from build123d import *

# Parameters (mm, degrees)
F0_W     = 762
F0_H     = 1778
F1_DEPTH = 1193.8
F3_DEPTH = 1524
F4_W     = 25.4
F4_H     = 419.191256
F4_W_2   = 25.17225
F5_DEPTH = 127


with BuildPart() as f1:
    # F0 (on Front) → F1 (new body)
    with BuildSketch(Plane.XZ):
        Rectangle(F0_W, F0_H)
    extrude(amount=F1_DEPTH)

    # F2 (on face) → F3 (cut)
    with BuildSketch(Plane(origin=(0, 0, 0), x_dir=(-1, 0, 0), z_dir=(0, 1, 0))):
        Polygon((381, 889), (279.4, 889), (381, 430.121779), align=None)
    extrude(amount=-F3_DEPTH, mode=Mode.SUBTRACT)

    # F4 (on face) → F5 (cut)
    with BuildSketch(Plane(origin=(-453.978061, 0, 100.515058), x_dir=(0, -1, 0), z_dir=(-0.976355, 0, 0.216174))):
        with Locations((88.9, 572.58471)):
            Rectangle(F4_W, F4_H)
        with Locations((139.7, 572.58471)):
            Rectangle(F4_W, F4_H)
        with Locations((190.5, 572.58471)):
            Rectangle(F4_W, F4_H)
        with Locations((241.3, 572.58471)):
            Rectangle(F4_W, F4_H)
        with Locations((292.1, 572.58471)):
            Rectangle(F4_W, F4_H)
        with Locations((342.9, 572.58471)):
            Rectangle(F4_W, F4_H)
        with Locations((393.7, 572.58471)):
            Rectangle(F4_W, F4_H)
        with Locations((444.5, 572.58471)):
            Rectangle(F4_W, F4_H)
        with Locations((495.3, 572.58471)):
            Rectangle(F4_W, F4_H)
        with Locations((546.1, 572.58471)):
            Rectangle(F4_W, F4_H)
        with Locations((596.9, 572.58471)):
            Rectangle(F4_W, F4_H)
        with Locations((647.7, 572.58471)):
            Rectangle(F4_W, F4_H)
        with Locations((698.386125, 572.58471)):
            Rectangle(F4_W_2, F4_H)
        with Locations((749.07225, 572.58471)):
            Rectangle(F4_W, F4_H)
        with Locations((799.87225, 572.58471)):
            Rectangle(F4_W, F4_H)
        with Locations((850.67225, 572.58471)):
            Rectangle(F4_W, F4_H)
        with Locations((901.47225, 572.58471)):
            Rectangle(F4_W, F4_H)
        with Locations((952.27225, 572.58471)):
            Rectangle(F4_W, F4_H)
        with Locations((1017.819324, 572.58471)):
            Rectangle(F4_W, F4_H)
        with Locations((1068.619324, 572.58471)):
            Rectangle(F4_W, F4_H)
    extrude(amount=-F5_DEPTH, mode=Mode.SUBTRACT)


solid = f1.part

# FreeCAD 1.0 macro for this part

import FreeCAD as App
import Part
import Sketcher

V = App.Vector
Q = App.Units.Quantity


def add_polygon(sketch, points):
    """Adds a closed chain of lines whose ends are joined by coincident constraints."""
    first, n = sketch.GeometryCount, len(points)
    for a, b in zip(points, points[1:] + points[:1]):
        sketch.addGeometry(Part.LineSegment(App.Vector(*a, 0), App.Vector(*b, 0)), False)
    for i in range(n):
        sketch.addConstraint(Sketcher.Constraint("Coincident", first + i, 2, first + (i + 1) % n, 1))

doc = App.newDocument("Part")
params = doc.addObject("Spreadsheet::Sheet", "Params")
for row, (alias, value) in enumerate([
    ("sketch1_width", "30 in"),
    ("sketch1_height", "70 in"),
    ("pad1_length", "47 in"),
    ("sketch2_width", "4 in"),
    ("pocket1_length", "60 in"),
    ("sketch3_width", "1 in"),
    ("pocket2_length", "5 in"),
], start=1):
    params.set(f"A{row}", alias)
    params.set(f"B{row}", "=" + value)
    params.setAlias(f"B{row}", alias)

body = doc.addObject("PartDesign::Body", "Body")

# Sketch on XZ plane
sketch1 = body.newObject("Sketcher::SketchObject", "Sketch")
sketch1.AttachmentSupport = (doc.getObject("XZ_Plane"), [""])
sketch1.MapMode = "FlatFace"
add_polygon(sketch1, [(-381, 889), (-381, -889), (381, -889), (381, 889)])  # lines 0-3
sketch1.addConstraint([
    Sketcher.Constraint("Vertical", 0),
    Sketcher.Constraint("Horizontal", 1),
    Sketcher.Constraint("Vertical", 2),
    Sketcher.Constraint("Horizontal", 3),
    Sketcher.Constraint("Symmetric", 0, 2, 2, 2, -1, 1),
    Sketcher.Constraint("DistanceX", 1, 1, 1, 2, Q("30 in")),
    Sketcher.Constraint("DistanceY", 0, 2, 0, 1, Q("70 in")),
])
sketch1.setExpression("Constraints[9]", "Params.sketch1_width")
sketch1.setExpression("Constraints[10]", "Params.sketch1_height")
pad1 = body.newObject("PartDesign::Pad", "Pad")
pad1.Profile = sketch1
pad1.setExpression("Length", "Params.pad1_length")

# Sketch on XZ plane
sketch2 = body.newObject("Sketcher::SketchObject", "Sketch001")
sketch2.AttachmentSupport = (doc.getObject("XZ_Plane"), [""])
sketch2.MapMode = "FlatFace"
add_polygon(sketch2, [(-381, 889), (-279, 889), (-381, 430)])  # lines 0-2
sketch2.addConstraint([
    Sketcher.Constraint("Horizontal", 0),
    Sketcher.Constraint("Vertical", 2),
    Sketcher.Constraint("DistanceX", 0, 1, 0, 2, Q("4 in")),
    Sketcher.Constraint("DistanceX", 0, 2, -1, 1, Q("11 in")),
    Sketcher.Constraint("DistanceY", -1, 1, 0, 2, Q("35 in")),
    Sketcher.Constraint("DistanceY", 2, 1, 2, 2, Q("458.878221 mm")),
])
sketch2.setExpression("Constraints[5]", "Params.sketch2_width")
pocket1 = body.newObject("PartDesign::Pocket", "Pocket")
pocket1.Profile = sketch2
pocket1.setExpression("Length", "Params.pocket1_length")
pocket1.Reversed = True

# Sketch on an angled plane
sketch3 = body.newObject("Sketcher::SketchObject", "Sketch002")
sketch3.Placement = App.Placement(V(-453.978061, 0, 100.515058), App.Rotation(V(0, -1, 0), V(0.216173969, 0, 0.976354861), V(-0.976354861, 0, 0.216173969), "ZXY"))
add_polygon(sketch3, [(76, 782), (76, 363), (102, 363), (102, 782)])  # lines 0-3
add_polygon(sketch3, [(127, 782), (127, 363), (152, 363), (152, 782)])  # lines 4-7
add_polygon(sketch3, [(178, 782), (178, 363), (203, 363), (203, 782)])  # lines 8-11
add_polygon(sketch3, [(229, 782), (229, 363), (254, 363), (254, 782)])  # lines 12-15
add_polygon(sketch3, [(279, 782), (279, 363), (305, 363), (305, 782)])  # lines 16-19
add_polygon(sketch3, [(330, 782), (330, 363), (356, 363), (356, 782)])  # lines 20-23
add_polygon(sketch3, [(381, 782), (381, 363), (406, 363), (406, 782)])  # lines 24-27
add_polygon(sketch3, [(432, 782), (432, 363), (457, 363), (457, 782)])  # lines 28-31
add_polygon(sketch3, [(483, 782), (483, 363), (508, 363), (508, 782)])  # lines 32-35
add_polygon(sketch3, [(533, 782), (533, 363), (559, 363), (559, 782)])  # lines 36-39
add_polygon(sketch3, [(584, 782), (584, 363), (610, 363), (610, 782)])  # lines 40-43
add_polygon(sketch3, [(635, 782), (635, 363), (660, 363), (660, 782)])  # lines 44-47
add_polygon(sketch3, [(686, 782), (686, 363), (711, 363), (711, 782)])  # lines 48-51
add_polygon(sketch3, [(736, 782), (736, 363), (762, 363), (762, 782)])  # lines 52-55
add_polygon(sketch3, [(787, 782), (787, 363), (813, 363), (813, 782)])  # lines 56-59
add_polygon(sketch3, [(838, 782), (838, 363), (863, 363), (863, 782)])  # lines 60-63
add_polygon(sketch3, [(889, 782), (889, 363), (914, 363), (914, 782)])  # lines 64-67
add_polygon(sketch3, [(940, 782), (940, 363), (965, 363), (965, 782)])  # lines 68-71
add_polygon(sketch3, [(1005, 782), (1005, 363), (1031, 363), (1031, 782)])  # lines 72-75
add_polygon(sketch3, [(1056, 782), (1056, 363), (1081, 363), (1081, 782)])  # lines 76-79
sketch3.addConstraint([
    Sketcher.Constraint("Vertical", 0),
    Sketcher.Constraint("Horizontal", 1),
    Sketcher.Constraint("Vertical", 2),
    Sketcher.Constraint("Horizontal", 3),
    Sketcher.Constraint("Vertical", 4),
    Sketcher.Constraint("Horizontal", 5),
    Sketcher.Constraint("Vertical", 6),
    Sketcher.Constraint("Horizontal", 7),
    Sketcher.Constraint("Vertical", 8),
    Sketcher.Constraint("Horizontal", 9),
    Sketcher.Constraint("Vertical", 10),
    Sketcher.Constraint("Horizontal", 11),
    Sketcher.Constraint("Vertical", 12),
    Sketcher.Constraint("Horizontal", 13),
    Sketcher.Constraint("Vertical", 14),
    Sketcher.Constraint("Horizontal", 15),
    Sketcher.Constraint("Vertical", 16),
    Sketcher.Constraint("Horizontal", 17),
    Sketcher.Constraint("Vertical", 18),
    Sketcher.Constraint("Horizontal", 19),
    Sketcher.Constraint("Vertical", 20),
    Sketcher.Constraint("Horizontal", 21),
    Sketcher.Constraint("Vertical", 22),
    Sketcher.Constraint("Horizontal", 23),
    Sketcher.Constraint("Vertical", 24),
    Sketcher.Constraint("Horizontal", 25),
    Sketcher.Constraint("Vertical", 26),
    Sketcher.Constraint("Horizontal", 27),
    Sketcher.Constraint("Vertical", 28),
    Sketcher.Constraint("Horizontal", 29),
    Sketcher.Constraint("Vertical", 30),
    Sketcher.Constraint("Horizontal", 31),
    Sketcher.Constraint("Vertical", 32),
    Sketcher.Constraint("Horizontal", 33),
    Sketcher.Constraint("Vertical", 34),
    Sketcher.Constraint("Horizontal", 35),
    Sketcher.Constraint("Vertical", 36),
    Sketcher.Constraint("Horizontal", 37),
    Sketcher.Constraint("Vertical", 38),
    Sketcher.Constraint("Horizontal", 39),
    Sketcher.Constraint("Vertical", 40),
    Sketcher.Constraint("Horizontal", 41),
    Sketcher.Constraint("Vertical", 42),
    Sketcher.Constraint("Horizontal", 43),
    Sketcher.Constraint("Vertical", 44),
    Sketcher.Constraint("Horizontal", 45),
    Sketcher.Constraint("Vertical", 46),
    Sketcher.Constraint("Horizontal", 47),
    Sketcher.Constraint("Vertical", 48),
    Sketcher.Constraint("Horizontal", 49),
    Sketcher.Constraint("Vertical", 50),
    Sketcher.Constraint("Horizontal", 51),
    Sketcher.Constraint("Vertical", 52),
    Sketcher.Constraint("Horizontal", 53),
    Sketcher.Constraint("Vertical", 54),
    Sketcher.Constraint("Horizontal", 55),
    Sketcher.Constraint("Vertical", 56),
    Sketcher.Constraint("Horizontal", 57),
    Sketcher.Constraint("Vertical", 58),
    Sketcher.Constraint("Horizontal", 59),
    Sketcher.Constraint("Vertical", 60),
    Sketcher.Constraint("Horizontal", 61),
    Sketcher.Constraint("Vertical", 62),
    Sketcher.Constraint("Horizontal", 63),
    Sketcher.Constraint("Vertical", 64),
    Sketcher.Constraint("Horizontal", 65),
    Sketcher.Constraint("Vertical", 66),
    Sketcher.Constraint("Horizontal", 67),
    Sketcher.Constraint("Vertical", 68),
    Sketcher.Constraint("Horizontal", 69),
    Sketcher.Constraint("Vertical", 70),
    Sketcher.Constraint("Horizontal", 71),
    Sketcher.Constraint("Vertical", 72),
    Sketcher.Constraint("Horizontal", 73),
    Sketcher.Constraint("Vertical", 74),
    Sketcher.Constraint("Horizontal", 75),
    Sketcher.Constraint("Vertical", 76),
    Sketcher.Constraint("Horizontal", 77),
    Sketcher.Constraint("Vertical", 78),
    Sketcher.Constraint("Horizontal", 79),
    Sketcher.Constraint("Horizontal", 1, 2, 4, 2),
    Sketcher.Constraint("Horizontal", 3, 2, 6, 2),
    Sketcher.Constraint("Horizontal", 5, 2, 8, 2),
    Sketcher.Constraint("Horizontal", 7, 2, 10, 2),
    Sketcher.Constraint("Horizontal", 9, 2, 12, 2),
    Sketcher.Constraint("Horizontal", 11, 2, 14, 2),
    Sketcher.Constraint("Horizontal", 13, 2, 16, 2),
    Sketcher.Constraint("Horizontal", 15, 2, 18, 2),
    Sketcher.Constraint("Horizontal", 17, 2, 20, 2),
    Sketcher.Constraint("Horizontal", 19, 2, 22, 2),
    Sketcher.Constraint("Horizontal", 21, 2, 24, 2),
    Sketcher.Constraint("Horizontal", 23, 2, 26, 2),
    Sketcher.Constraint("Horizontal", 25, 2, 28, 2),
    Sketcher.Constraint("Horizontal", 27, 2, 30, 2),
    Sketcher.Constraint("Horizontal", 29, 2, 32, 2),
    Sketcher.Constraint("Horizontal", 31, 2, 34, 2),
    Sketcher.Constraint("Horizontal", 33, 2, 36, 2),
    Sketcher.Constraint("Horizontal", 35, 2, 38, 2),
    Sketcher.Constraint("Horizontal", 37, 2, 40, 2),
    Sketcher.Constraint("Horizontal", 39, 2, 42, 2),
    Sketcher.Constraint("Horizontal", 41, 2, 44, 2),
    Sketcher.Constraint("Horizontal", 43, 2, 46, 2),
    Sketcher.Constraint("Horizontal", 45, 2, 48, 2),
    Sketcher.Constraint("Horizontal", 47, 2, 50, 2),
    Sketcher.Constraint("Horizontal", 49, 2, 52, 2),
    Sketcher.Constraint("Horizontal", 51, 2, 54, 2),
    Sketcher.Constraint("Horizontal", 53, 2, 56, 2),
    Sketcher.Constraint("Horizontal", 55, 2, 58, 2),
    Sketcher.Constraint("Horizontal", 57, 2, 60, 2),
    Sketcher.Constraint("Horizontal", 59, 2, 62, 2),
    Sketcher.Constraint("Horizontal", 61, 2, 64, 2),
    Sketcher.Constraint("Horizontal", 63, 2, 66, 2),
    Sketcher.Constraint("Horizontal", 65, 2, 68, 2),
    Sketcher.Constraint("Horizontal", 67, 2, 70, 2),
    Sketcher.Constraint("Horizontal", 69, 2, 72, 2),
    Sketcher.Constraint("Horizontal", 71, 2, 74, 2),
    Sketcher.Constraint("Horizontal", 73, 2, 76, 2),
    Sketcher.Constraint("Horizontal", 75, 2, 78, 2),
    Sketcher.Constraint("Equal", 3, 5),
    Sketcher.Constraint("Equal", 7, 9),
    Sketcher.Constraint("Equal", 11, 13),
    Sketcher.Constraint("Equal", 15, 17),
    Sketcher.Constraint("Equal", 19, 21),
    Sketcher.Constraint("Equal", 23, 25),
    Sketcher.Constraint("Equal", 27, 29),
    Sketcher.Constraint("Equal", 31, 33),
    Sketcher.Constraint("Equal", 35, 37),
    Sketcher.Constraint("Equal", 39, 41),
    Sketcher.Constraint("Equal", 43, 45),
    Sketcher.Constraint("Equal", 47, 53),
    Sketcher.Constraint("Equal", 55, 57),
    Sketcher.Constraint("Equal", 59, 61),
    Sketcher.Constraint("Equal", 63, 65),
    Sketcher.Constraint("Equal", 67, 69),
    Sketcher.Constraint("Equal", 71, 73),
    Sketcher.Constraint("Equal", 75, 77),
    Sketcher.Constraint("DistanceX", 1, 1, 1, 2, Q("1 in")),
    Sketcher.Constraint("DistanceX", -1, 1, 0, 2, Q("3 in")),
    Sketcher.Constraint("DistanceX", -1, 1, 4, 2, Q("5 in")),
    Sketcher.Constraint("DistanceX", -1, 1, 8, 2, Q("7 in")),
    Sketcher.Constraint("DistanceX", -1, 1, 12, 2, Q("9 in")),
    Sketcher.Constraint("DistanceX", -1, 1, 16, 2, Q("11 in")),
    Sketcher.Constraint("DistanceX", -1, 1, 20, 2, Q("13 in")),
    Sketcher.Constraint("DistanceX", -1, 1, 24, 2, Q("15 in")),
    Sketcher.Constraint("DistanceX", -1, 1, 28, 2, Q("17 in")),
    Sketcher.Constraint("DistanceX", -1, 1, 32, 2, Q("19 in")),
    Sketcher.Constraint("DistanceX", -1, 1, 36, 2, Q("21 in")),
    Sketcher.Constraint("DistanceX", -1, 1, 40, 2, Q("23 in")),
    Sketcher.Constraint("DistanceX", -1, 1, 44, 2, Q("25 in")),
    Sketcher.Constraint("DistanceX", -1, 1, 48, 2, Q("27 in")),
    Sketcher.Constraint("DistanceX", 49, 1, 49, 2, Q("25.17225 mm")),
    Sketcher.Constraint("DistanceY", 0, 2, 0, 1, Q("419.191256 mm")),
    Sketcher.Constraint("DistanceY", -1, 1, 0, 2, Q("362.989082 mm")),
    Sketcher.Constraint("DistanceX", -1, 1, 52, 2, Q("736.37225 mm")),
    Sketcher.Constraint("DistanceX", -1, 1, 56, 2, Q("787.17225 mm")),
    Sketcher.Constraint("DistanceX", -1, 1, 60, 2, Q("837.97225 mm")),
    Sketcher.Constraint("DistanceX", -1, 1, 64, 2, Q("888.77225 mm")),
    Sketcher.Constraint("DistanceX", -1, 1, 68, 2, Q("939.57225 mm")),
    Sketcher.Constraint("DistanceX", -1, 1, 72, 2, Q("1005.119324 mm")),
    Sketcher.Constraint("DistanceX", -1, 1, 76, 2, Q("1055.919324 mm")),
])
sketch3.setExpression("Constraints[216]", "Params.sketch3_width")
pocket2 = body.newObject("PartDesign::Pocket", "Pocket001")
pocket2.Profile = sketch3
pocket2.setExpression("Length", "Params.pocket2_length")

doc.recompute()
